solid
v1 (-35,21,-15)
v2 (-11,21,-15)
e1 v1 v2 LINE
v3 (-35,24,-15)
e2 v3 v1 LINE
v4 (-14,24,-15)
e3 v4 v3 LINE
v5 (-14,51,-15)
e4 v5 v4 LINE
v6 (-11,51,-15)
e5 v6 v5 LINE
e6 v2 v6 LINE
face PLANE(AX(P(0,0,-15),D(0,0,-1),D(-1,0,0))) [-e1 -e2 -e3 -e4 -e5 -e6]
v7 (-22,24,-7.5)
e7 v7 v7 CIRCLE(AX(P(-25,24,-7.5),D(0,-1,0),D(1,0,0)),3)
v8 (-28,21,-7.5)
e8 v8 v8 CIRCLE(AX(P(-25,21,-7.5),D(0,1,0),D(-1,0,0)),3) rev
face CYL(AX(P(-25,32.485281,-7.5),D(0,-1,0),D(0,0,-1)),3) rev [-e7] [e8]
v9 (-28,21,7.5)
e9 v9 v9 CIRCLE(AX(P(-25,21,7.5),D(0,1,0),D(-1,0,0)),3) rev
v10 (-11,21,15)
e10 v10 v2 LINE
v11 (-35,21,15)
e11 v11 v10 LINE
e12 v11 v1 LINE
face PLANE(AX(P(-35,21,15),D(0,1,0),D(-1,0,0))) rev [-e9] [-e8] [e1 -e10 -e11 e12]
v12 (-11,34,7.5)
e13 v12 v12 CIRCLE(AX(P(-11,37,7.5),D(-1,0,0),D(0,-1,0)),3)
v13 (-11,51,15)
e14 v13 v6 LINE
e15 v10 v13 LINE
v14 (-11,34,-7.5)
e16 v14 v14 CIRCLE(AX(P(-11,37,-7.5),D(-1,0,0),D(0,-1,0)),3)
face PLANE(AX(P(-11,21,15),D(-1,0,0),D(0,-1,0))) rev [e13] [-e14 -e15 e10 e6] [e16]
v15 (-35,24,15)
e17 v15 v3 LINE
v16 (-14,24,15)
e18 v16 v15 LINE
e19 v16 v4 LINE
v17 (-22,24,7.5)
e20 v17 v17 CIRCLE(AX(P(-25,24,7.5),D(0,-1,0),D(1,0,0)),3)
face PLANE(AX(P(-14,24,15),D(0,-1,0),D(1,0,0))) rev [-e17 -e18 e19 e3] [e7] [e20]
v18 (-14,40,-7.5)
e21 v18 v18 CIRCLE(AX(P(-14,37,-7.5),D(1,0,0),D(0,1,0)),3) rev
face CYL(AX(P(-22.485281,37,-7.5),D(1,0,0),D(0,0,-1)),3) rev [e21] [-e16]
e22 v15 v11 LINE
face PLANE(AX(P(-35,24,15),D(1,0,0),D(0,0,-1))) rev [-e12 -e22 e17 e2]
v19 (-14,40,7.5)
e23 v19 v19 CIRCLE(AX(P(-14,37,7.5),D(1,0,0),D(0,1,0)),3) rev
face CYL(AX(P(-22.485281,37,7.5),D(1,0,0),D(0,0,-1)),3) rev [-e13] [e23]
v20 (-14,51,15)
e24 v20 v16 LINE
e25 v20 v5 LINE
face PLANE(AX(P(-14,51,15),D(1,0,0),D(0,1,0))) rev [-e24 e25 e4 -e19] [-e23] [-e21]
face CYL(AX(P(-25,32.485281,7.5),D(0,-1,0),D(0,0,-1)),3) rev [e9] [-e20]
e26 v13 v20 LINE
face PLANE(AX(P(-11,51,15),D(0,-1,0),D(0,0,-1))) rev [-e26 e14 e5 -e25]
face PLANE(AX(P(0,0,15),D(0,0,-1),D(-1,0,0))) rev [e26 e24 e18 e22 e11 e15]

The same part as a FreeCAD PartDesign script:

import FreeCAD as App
import Part
import Sketcher
from FreeCAD import Vector


def add_polygon(sketch, points):
    """Adds a closed chain of lines whose ends are joined by coincident constraints."""
    first, n = sketch.GeometryCount, len(points)
    for a, b in zip(points, points[1:] + points[:1]):
        sketch.addGeometry(Part.LineSegment(App.Vector(*a, 0), App.Vector(*b, 0)), False)
    for i in range(n):
        sketch.addConstraint(Sketcher.Constraint("Coincident", first + i, 2, first + (i + 1) % n, 1))

doc = App.newDocument("Part")
params = doc.addObject("Spreadsheet::Sheet", "Params")
for row, (alias, value) in enumerate([
    ("sketch1_width", "21 mm"),
    ("sketch1_width2", "24 mm"),
    ("sketch1_height", "30 mm"),
    ("pad1_length", "15 mm"),
    ("pad1_length2", "15 mm"),
    ("sketch2_diameter", "6 mm"),
    ("pocket1_length", "14 mm"),
    ("sketch3_diameter", "6 mm"),
    ("pocket2_length", "24 mm"),
], start=1):
    params.set(f"A{row}", alias)
    params.set(f"B{row}", "=" + value)
    params.setAlias(f"B{row}", alias)

body = doc.addObject("PartDesign::Body", "Body")

# Sketch on XY plane
sketch1 = doc.addObject("Sketcher::SketchObject", "Sketch")
body.addObject(sketch1)
sketch1.AttachmentSupport = (doc.XY_Plane, [""])
sketch1.MapMode = "FlatFace"
add_polygon(sketch1, [(-14, 24), (-35, 24), (-35, 21), (-11, 21), (-11, 51), (-14, 51)])  # lines 0-5
sketch1.addConstraint([
    Sketcher.Constraint("Horizontal", 0),
    Sketcher.Constraint("Vertical", 1),
    Sketcher.Constraint("Horizontal", 2),
    Sketcher.Constraint("Vertical", 3),
    Sketcher.Constraint("Horizontal", 4),
    Sketcher.Constraint("Vertical", 5),
    Sketcher.Constraint("Equal", 4, 1),
    Sketcher.Constraint("DistanceX", 0, 2, 0, 1, 21.0),
    Sketcher.Constraint("DistanceX", 2, 1, 2, 2, 24.0),
    Sketcher.Constraint("DistanceY", 3, 1, 3, 2, 30.0),
    Sketcher.Constraint("DistanceX", 0, 2, -1, 1, 35.0),
    Sketcher.Constraint("DistanceY", -1, 1, 0, 2, 24.0),
])
sketch1.setExpression("Constraints[13]", "Params.sketch1_width")
sketch1.setExpression("Constraints[14]", "Params.sketch1_width2")
sketch1.setExpression("Constraints[15]", "Params.sketch1_height")
pad1 = doc.addObject("PartDesign::Pad", "Pad")
body.addObject(pad1)
pad1.Profile = sketch1
pad1.Type = "TwoLengths"
pad1.setExpression("Length", "Params.pad1_length")
pad1.setExpression("Length2", "Params.pad1_length2")

# Sketch on YZ plane
sketch2 = doc.addObject("Sketcher::SketchObject", "Sketch001")
body.addObject(sketch2)
sketch2.AttachmentSupport = (doc.YZ_Plane, [""])
sketch2.MapMode = "FlatFace"
sketch2.addGeometry([
    Part.Circle(Vector(37, -7.5, 0), Vector(0, 0, 1), 3),
    Part.Circle(Vector(37, 7.5, 0), Vector(0, 0, 1), 3),
], False)
sketch2.addConstraint([
    Sketcher.Constraint("Equal", 0, 1),
    Sketcher.Constraint("Symmetric", 0, 3, 1, 3, -1),
    Sketcher.Constraint("Diameter", 0, 6.0),
    Sketcher.Constraint("DistanceX", -1, 1, 0, 3, 37.0),
    Sketcher.Constraint("DistanceY", 0, 3, 1, 3, 15.0),
])
sketch2.setExpression("Constraints[2]", "Params.sketch2_diameter")
pocket1 = doc.addObject("PartDesign::Pocket", "Pocket")
body.addObject(pocket1)
pocket1.Profile = sketch2
pocket1.setExpression("Length", "Params.pocket1_length")

# Sketch on XZ plane
sketch3 = doc.addObject("Sketcher::SketchObject", "Sketch002")
body.addObject(sketch3)
sketch3.AttachmentSupport = (doc.XZ_Plane, [""])
sketch3.MapMode = "FlatFace"
sketch3.addGeometry([
    Part.Circle(Vector(-25, -7.5, 0), Vector(0, 0, 1), 3),
    Part.Circle(Vector(-25, 7.5, 0), Vector(0, 0, 1), 3),
], False)
sketch3.addConstraint([
    Sketcher.Constraint("Equal", 0, 1),
    Sketcher.Constraint("Symmetric", 0, 3, 1, 3, -1),
    Sketcher.Constraint("Diameter", 0, 6.0),
    Sketcher.Constraint("DistanceX", 0, 3, -1, 1, 25.0),
    Sketcher.Constraint("DistanceY", 0, 3, 1, 3, 15.0),
])
sketch3.setExpression("Constraints[2]", "Params.sketch3_diameter")
pocket2 = doc.addObject("PartDesign::Pocket", "Pocket001")
body.addObject(pocket2)
pocket2.Profile = sketch3
pocket2.setExpression("Length", "Params.pocket2_length")

doc.recompute()
